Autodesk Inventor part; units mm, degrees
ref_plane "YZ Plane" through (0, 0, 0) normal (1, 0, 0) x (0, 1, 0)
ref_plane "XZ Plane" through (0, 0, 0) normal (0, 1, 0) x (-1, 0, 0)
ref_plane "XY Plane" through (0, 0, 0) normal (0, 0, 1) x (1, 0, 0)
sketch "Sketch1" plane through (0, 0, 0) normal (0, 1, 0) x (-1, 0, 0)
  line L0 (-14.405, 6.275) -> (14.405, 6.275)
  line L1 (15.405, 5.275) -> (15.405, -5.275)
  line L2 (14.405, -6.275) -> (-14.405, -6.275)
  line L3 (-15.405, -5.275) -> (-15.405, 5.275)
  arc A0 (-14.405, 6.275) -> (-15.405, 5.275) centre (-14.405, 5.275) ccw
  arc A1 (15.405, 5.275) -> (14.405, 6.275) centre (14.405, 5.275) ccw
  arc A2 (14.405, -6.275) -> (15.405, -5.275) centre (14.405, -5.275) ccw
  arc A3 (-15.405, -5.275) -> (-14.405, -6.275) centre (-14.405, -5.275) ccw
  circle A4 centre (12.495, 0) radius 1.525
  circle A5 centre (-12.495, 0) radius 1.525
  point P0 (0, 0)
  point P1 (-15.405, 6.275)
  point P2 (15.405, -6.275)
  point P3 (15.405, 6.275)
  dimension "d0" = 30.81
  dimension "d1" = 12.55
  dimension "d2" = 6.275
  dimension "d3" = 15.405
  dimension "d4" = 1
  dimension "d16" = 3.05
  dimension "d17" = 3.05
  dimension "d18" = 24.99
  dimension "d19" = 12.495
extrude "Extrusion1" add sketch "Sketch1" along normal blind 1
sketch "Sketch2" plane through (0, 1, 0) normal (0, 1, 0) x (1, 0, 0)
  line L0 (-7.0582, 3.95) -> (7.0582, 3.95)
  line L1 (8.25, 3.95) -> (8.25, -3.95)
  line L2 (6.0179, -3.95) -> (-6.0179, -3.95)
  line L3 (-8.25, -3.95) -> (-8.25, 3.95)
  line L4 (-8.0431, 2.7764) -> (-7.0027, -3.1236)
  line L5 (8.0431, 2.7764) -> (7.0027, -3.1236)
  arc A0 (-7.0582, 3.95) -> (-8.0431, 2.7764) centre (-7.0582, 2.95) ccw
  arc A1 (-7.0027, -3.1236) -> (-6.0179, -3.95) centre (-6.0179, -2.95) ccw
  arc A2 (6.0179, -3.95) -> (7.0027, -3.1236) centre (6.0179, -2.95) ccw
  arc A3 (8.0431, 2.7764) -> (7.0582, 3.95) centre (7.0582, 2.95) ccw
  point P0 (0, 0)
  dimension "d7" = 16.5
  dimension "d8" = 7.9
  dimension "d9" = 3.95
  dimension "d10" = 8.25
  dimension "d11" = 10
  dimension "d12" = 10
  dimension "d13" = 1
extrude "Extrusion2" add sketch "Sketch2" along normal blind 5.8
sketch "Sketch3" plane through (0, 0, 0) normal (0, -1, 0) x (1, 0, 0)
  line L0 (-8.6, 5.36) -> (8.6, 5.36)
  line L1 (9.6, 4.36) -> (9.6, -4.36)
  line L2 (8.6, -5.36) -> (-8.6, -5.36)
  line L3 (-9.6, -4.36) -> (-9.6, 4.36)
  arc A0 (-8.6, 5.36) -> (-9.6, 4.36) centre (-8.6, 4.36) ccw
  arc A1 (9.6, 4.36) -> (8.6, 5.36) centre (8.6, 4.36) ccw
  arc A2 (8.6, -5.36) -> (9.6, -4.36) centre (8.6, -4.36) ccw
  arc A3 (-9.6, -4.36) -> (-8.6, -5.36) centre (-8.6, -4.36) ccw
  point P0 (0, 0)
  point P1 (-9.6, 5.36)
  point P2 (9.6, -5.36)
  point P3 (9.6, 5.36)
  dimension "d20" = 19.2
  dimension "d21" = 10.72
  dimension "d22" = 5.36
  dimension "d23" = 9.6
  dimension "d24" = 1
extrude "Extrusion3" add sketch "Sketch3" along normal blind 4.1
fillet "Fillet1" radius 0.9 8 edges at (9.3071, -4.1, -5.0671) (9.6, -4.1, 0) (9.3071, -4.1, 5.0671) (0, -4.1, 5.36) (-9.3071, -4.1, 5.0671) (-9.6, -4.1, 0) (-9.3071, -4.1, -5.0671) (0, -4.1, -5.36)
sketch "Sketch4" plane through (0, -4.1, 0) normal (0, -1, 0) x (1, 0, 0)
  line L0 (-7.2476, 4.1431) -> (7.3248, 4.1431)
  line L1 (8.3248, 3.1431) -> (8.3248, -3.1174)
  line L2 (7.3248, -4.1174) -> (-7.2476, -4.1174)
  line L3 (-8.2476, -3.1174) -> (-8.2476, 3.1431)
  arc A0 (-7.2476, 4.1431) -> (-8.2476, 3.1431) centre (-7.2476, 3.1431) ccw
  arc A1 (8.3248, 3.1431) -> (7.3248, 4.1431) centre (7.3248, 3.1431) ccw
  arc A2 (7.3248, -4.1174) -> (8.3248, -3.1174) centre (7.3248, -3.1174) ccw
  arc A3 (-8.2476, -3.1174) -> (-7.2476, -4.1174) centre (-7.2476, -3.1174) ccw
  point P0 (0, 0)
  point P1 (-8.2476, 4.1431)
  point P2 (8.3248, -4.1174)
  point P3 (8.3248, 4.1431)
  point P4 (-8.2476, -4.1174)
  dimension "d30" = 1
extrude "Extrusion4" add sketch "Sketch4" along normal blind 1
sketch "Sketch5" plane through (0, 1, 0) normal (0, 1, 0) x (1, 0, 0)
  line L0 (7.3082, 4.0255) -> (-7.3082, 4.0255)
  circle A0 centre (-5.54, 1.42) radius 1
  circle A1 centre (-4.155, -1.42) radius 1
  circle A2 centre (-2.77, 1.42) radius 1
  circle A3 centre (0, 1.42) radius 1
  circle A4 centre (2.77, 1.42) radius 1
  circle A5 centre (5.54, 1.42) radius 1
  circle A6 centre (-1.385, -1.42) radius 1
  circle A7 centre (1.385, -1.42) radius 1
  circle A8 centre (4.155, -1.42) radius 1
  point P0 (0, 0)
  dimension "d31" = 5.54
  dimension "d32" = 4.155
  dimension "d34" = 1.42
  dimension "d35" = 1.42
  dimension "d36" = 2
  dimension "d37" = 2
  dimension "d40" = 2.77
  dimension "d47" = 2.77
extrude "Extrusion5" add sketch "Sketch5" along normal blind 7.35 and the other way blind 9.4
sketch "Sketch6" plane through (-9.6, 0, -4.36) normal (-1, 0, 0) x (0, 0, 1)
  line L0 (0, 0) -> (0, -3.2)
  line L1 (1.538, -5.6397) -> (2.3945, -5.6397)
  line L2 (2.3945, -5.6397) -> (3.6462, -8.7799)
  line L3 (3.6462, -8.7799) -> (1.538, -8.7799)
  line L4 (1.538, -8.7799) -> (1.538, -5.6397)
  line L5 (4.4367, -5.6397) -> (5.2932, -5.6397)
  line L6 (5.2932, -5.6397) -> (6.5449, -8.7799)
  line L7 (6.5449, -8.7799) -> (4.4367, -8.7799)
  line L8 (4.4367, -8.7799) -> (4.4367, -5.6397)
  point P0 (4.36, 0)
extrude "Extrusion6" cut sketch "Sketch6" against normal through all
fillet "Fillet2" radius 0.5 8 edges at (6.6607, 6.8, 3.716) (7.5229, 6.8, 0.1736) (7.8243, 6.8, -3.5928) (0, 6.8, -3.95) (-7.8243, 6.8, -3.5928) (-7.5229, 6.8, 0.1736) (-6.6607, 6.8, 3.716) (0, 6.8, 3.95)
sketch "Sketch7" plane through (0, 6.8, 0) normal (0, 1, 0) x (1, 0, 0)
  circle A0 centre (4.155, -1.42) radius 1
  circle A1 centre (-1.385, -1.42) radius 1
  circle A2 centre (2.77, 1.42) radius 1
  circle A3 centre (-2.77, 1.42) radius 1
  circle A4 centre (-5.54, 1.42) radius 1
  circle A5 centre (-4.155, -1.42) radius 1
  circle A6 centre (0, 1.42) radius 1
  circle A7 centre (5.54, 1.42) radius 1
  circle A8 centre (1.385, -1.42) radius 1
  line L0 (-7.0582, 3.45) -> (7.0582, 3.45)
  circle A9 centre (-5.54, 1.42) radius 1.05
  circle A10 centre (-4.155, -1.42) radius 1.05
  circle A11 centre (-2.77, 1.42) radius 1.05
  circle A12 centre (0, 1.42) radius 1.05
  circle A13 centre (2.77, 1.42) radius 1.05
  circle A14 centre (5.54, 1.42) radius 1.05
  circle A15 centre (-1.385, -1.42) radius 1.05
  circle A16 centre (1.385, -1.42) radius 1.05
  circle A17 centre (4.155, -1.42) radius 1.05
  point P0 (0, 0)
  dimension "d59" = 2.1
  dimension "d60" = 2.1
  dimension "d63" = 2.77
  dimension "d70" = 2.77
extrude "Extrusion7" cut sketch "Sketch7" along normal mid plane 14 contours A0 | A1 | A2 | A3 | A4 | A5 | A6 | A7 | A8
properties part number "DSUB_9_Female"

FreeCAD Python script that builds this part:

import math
import FreeCAD as App
import Part
import Sketcher

V = App.Vector
Q = App.Units.Quantity


def edges_at(feature, points):
    """Names of the edges that pass closest to the given points."""
    edges = feature.Shape.Edges
    near = lambda p: min(range(len(edges)), key=lambda i: edges[i].distToShape(Part.Vertex(*p))[0])
    return sorted({f"Edge{near(p) + 1}" for p in points})


def add_polygon(sketch, points):
    """Adds a closed chain of lines whose ends are joined by coincident constraints."""
    first, n = sketch.GeometryCount, len(points)
    for a, b in zip(points, points[1:] + points[:1]):
        sketch.addGeometry(Part.LineSegment(App.Vector(*a, 0), App.Vector(*b, 0)), False)
    for i in range(n):
        sketch.addConstraint(Sketcher.Constraint("Coincident", first + i, 2, first + (i + 1) % n, 1))

doc = App.newDocument("Part")
body = doc.addObject("PartDesign::Body", "Body")

# Sketch on XZ plane
sketch1 = body.newObject("Sketcher::SketchObject", "Sketch")
sketch1.AttachmentSupport = (doc.getObject("XZ_Plane"), [""])
sketch1.MapMode = "FlatFace"
sketch1.addGeometry(Part.LineSegment(V(-14.405, 6.275, 0), V(14.405, 6.275, 0)), False)
sketch1.addGeometry(Part.ArcOfCircle(Part.Circle(V(14.405, 5.275, 0), V(0, 0, 1), 1), math.radians(0), math.radians(90)), False)
sketch1.addGeometry(Part.LineSegment(V(15.405, 5.275, 0), V(15.405, -5.275, 0)), False)
sketch1.addGeometry(Part.ArcOfCircle(Part.Circle(V(14.405, -5.275, 0), V(0, 0, 1), 1), math.radians(-90), math.radians(0)), False)
sketch1.addGeometry(Part.LineSegment(V(14.405, -6.275, 0), V(-14.405, -6.275, 0)), False)
sketch1.addGeometry(Part.ArcOfCircle(Part.Circle(V(-14.405, -5.275, 0), V(0, 0, 1), 1), math.radians(180), math.radians(270)), False)
sketch1.addGeometry(Part.LineSegment(V(-15.405, -5.275, 0), V(-15.405, 5.275, 0)), False)
sketch1.addGeometry(Part.ArcOfCircle(Part.Circle(V(-14.405, 5.275, 0), V(0, 0, 1), 1), math.radians(90), math.radians(180)), False)
sketch1.addGeometry(Part.Circle(V(12.495, 0, 0), V(0, 0, 1), 1.525), False)
sketch1.addGeometry(Part.Circle(V(-12.495, 0, 0), V(0, 0, 1), 1.525), False)
sketch1.addConstraint(Sketcher.Constraint("Tangent", 0, 2, 1, 2))
sketch1.addConstraint(Sketcher.Constraint("Tangent", 1, 1, 2, 1))
sketch1.addConstraint(Sketcher.Constraint("Tangent", 2, 2, 3, 2))
sketch1.addConstraint(Sketcher.Constraint("Tangent", 3, 1, 4, 1))
sketch1.addConstraint(Sketcher.Constraint("Tangent", 4, 2, 5, 2))
sketch1.addConstraint(Sketcher.Constraint("Tangent", 5, 1, 6, 1))
sketch1.addConstraint(Sketcher.Constraint("Tangent", 6, 2, 7, 2))
sketch1.addConstraint(Sketcher.Constraint("Tangent", 7, 1, 0, 1))
sketch1.addConstraint(Sketcher.Constraint("Horizontal", 0))
sketch1.addConstraint(Sketcher.Constraint("Vertical", 2))
sketch1.addConstraint(Sketcher.Constraint("Horizontal", 4))
sketch1.addConstraint(Sketcher.Constraint("Vertical", 6))
sketch1.addConstraint(Sketcher.Constraint("Equal", 1, 3))
sketch1.addConstraint(Sketcher.Constraint("Equal", 3, 5))
sketch1.addConstraint(Sketcher.Constraint("Equal", 5, 7))
sketch1.addConstraint(Sketcher.Constraint("Equal", 8, 9))
sketch1.addConstraint(Sketcher.Constraint("Symmetric", 1, 3, 5, 3, -1, 1))
sketch1.addConstraint(Sketcher.Constraint("Symmetric", 8, 3, 9, 3, -1, 1))
sketch1.addConstraint(Sketcher.Constraint("PointOnObject", 8, 3, -1))
sketch1.addConstraint(Sketcher.Constraint("Radius", 1, Q("1 mm")))
sketch1.addConstraint(Sketcher.Constraint("Diameter", 8, Q("3.05 mm")))
sketch1.addConstraint(Sketcher.Constraint("DistanceX", 9, 3, 8, 3, Q("24.99 mm")))
sketch1.addConstraint(Sketcher.Constraint("DistanceY", -1, 1, 0, 2, Q("6.275 mm")))
sketch1.addConstraint(Sketcher.Constraint("DistanceX", -1, 1, 1, 1, Q("15.405 mm")))
pad1 = body.newObject("PartDesign::Pad", "Pad")
pad1.Profile = sketch1
pad1.Length = 1
pad1.Reversed = True

# Sketch on XZ plane
sketch2 = body.newObject("Sketcher::SketchObject", "Sketch001")
sketch2.AttachmentSupport = (doc.getObject("XZ_Plane"), [""])
sketch2.MapMode = "FlatFace"
sketch2.AttachmentOffset = App.Placement(V(0, 0, -1), App.Rotation())
sketch2.addGeometry(Part.LineSegment(V(7.0582, -3.95, 0), V(-7.0582, -3.95, 0)), False)
sketch2.addGeometry(Part.ArcOfCircle(Part.Circle(V(-7.0582, -2.95, 0), V(0, 0, 1), 1), math.radians(170.003636), math.radians(270)), False)
sketch2.addGeometry(Part.LineSegment(V(-8.0431, -2.7764, 0), V(-7.0027, 3.1236, 0)), False)
sketch2.addGeometry(Part.ArcOfCircle(Part.Circle(V(-6.0179, 2.95, 0), V(0, 0, 1), 0.999984), math.radians(90), math.radians(170.002641)), False)
sketch2.addGeometry(Part.LineSegment(V(-6.0179, 3.95, 0), V(6.0179, 3.95, 0)), False)
sketch2.addGeometry(Part.ArcOfCircle(Part.Circle(V(6.0179, 2.95, 0), V(0, 0, 1), 1), math.radians(9.997359), math.radians(90)), False)
sketch2.addGeometry(Part.LineSegment(V(7.0027, 3.1236, 0), V(8.0431, -2.7764, 0)), False)
sketch2.addGeometry(Part.ArcOfCircle(Part.Circle(V(7.0582, -2.95, 0), V(0, 0, 1), 1.000082), math.radians(-90), math.radians(9.996364)), False)
sketch2.addConstraint(Sketcher.Constraint("Tangent", 0, 2, 1, 2))
sketch2.addConstraint(Sketcher.Constraint("Tangent", 1, 1, 2, 1))
sketch2.addConstraint(Sketcher.Constraint("Tangent", 2, 2, 3, 2))
sketch2.addConstraint(Sketcher.Constraint("Tangent", 3, 1, 4, 1))
sketch2.addConstraint(Sketcher.Constraint("Tangent", 4, 2, 5, 2))
sketch2.addConstraint(Sketcher.Constraint("Tangent", 5, 1, 6, 1))
sketch2.addConstraint(Sketcher.Constraint("Tangent", 6, 2, 7, 2))
sketch2.addConstraint(Sketcher.Constraint("Tangent", 7, 1, 0, 1))
sketch2.addConstraint(Sketcher.Constraint("Horizontal", 0))
sketch2.addConstraint(Sketcher.Constraint("Horizontal", 4))
sketch2.addConstraint(Sketcher.Constraint("Equal", 1, 3))
sketch2.addConstraint(Sketcher.Constraint("Equal", 3, 5))
sketch2.addConstraint(Sketcher.Constraint("Equal", 5, 7))
sketch2.addConstraint(Sketcher.Constraint("Symmetric", 2, 2, 5, 1, -2))
sketch2.addConstraint(Sketcher.Constraint("Radius", 1, Q("1 mm")))
sketch2.addConstraint(Sketcher.Constraint("DistanceY", 0, 2, 3, 1, Q("7.9 mm")))
sketch2.addConstraint(Sketcher.Constraint("DistanceY", 0, 2, -1, 1, Q("3.95 mm")))
sketch2.addConstraint(Sketcher.Constraint("Angle", 2, Q("79.9993 deg")))
sketch2.addConstraint(Sketcher.Constraint("DistanceX", 0, 2, 0, 1, Q("14.1164 mm")))
pad2 = body.newObject("PartDesign::Pad", "Pad001")
pad2.Profile = sketch2
pad2.Length = 5.8
pad2.Reversed = True

# Sketch on XZ plane
sketch3 = body.newObject("Sketcher::SketchObject", "Sketch002")
sketch3.AttachmentSupport = (doc.getObject("XZ_Plane"), [""])
sketch3.MapMode = "FlatFace"
sketch3.addGeometry(Part.LineSegment(V(8.6, 5.36, 0), V(-8.6, 5.36, 0)), False)
sketch3.addGeometry(Part.ArcOfCircle(Part.Circle(V(-8.6, 4.36, 0), V(0, 0, 1), 1), math.radians(90), math.radians(180)), False)
sketch3.addGeometry(Part.LineSegment(V(-9.6, 4.36, 0), V(-9.6, -4.36, 0)), False)
sketch3.addGeometry(Part.ArcOfCircle(Part.Circle(V(-8.6, -4.36, 0), V(0, 0, 1), 1), math.radians(180), math.radians(270)), False)
sketch3.addGeometry(Part.LineSegment(V(-8.6, -5.36, 0), V(8.6, -5.36, 0)), False)
sketch3.addGeometry(Part.ArcOfCircle(Part.Circle(V(8.6, -4.36, 0), V(0, 0, 1), 1), math.radians(-90), math.radians(0)), False)
sketch3.addGeometry(Part.LineSegment(V(9.6, -4.36, 0), V(9.6, 4.36, 0)), False)
sketch3.addGeometry(Part.ArcOfCircle(Part.Circle(V(8.6, 4.36, 0), V(0, 0, 1), 1), math.radians(0), math.radians(90)), False)
sketch3.addConstraint(Sketcher.Constraint("Tangent", 0, 2, 1, 1))
sketch3.addConstraint(Sketcher.Constraint("Tangent", 1, 2, 2, 1))
sketch3.addConstraint(Sketcher.Constraint("Tangent", 2, 2, 3, 1))
sketch3.addConstraint(Sketcher.Constraint("Tangent", 3, 2, 4, 1))
sketch3.addConstraint(Sketcher.Constraint("Tangent", 4, 2, 5, 1))
sketch3.addConstraint(Sketcher.Constraint("Tangent", 5, 2, 6, 1))
sketch3.addConstraint(Sketcher.Constraint("Tangent", 6, 2, 7, 1))
sketch3.addConstraint(Sketcher.Constraint("Tangent", 7, 2, 0, 1))
sketch3.addConstraint(Sketcher.Constraint("Horizontal", 0))
sketch3.addConstraint(Sketcher.Constraint("Vertical", 2))
sketch3.addConstraint(Sketcher.Constraint("Horizontal", 4))
sketch3.addConstraint(Sketcher.Constraint("Vertical", 6))
sketch3.addConstraint(Sketcher.Constraint("Equal", 1, 3))
sketch3.addConstraint(Sketcher.Constraint("Equal", 3, 5))
sketch3.addConstraint(Sketcher.Constraint("Equal", 5, 7))
sketch3.addConstraint(Sketcher.Constraint("Symmetric", 1, 3, 5, 3, -1, 1))
sketch3.addConstraint(Sketcher.Constraint("Radius", 1, Q("1 mm")))
sketch3.addConstraint(Sketcher.Constraint("DistanceX", 1, 2, -1, 1, Q("9.6 mm")))
sketch3.addConstraint(Sketcher.Constraint("DistanceY", -1, 1, 0, 2, Q("5.36 mm")))
pad3 = body.newObject("PartDesign::Pad", "Pad002")
pad3.Profile = sketch3
pad3.Length = 4.1
doc.recompute()

fillet = body.newObject("PartDesign::Fillet", "Fillet")
fillet.Base = (pad3, edges_at(pad3, [
    (9.307, -4.1, -5.067),
    (9.6, -4.1, 0),
    (9.307, -4.1, 5.067),
    (0, -4.1, 5.36),
    (-9.307, -4.1, 5.067),
    (-9.6, -4.1, 0),
    (-9.307, -4.1, -5.067),
    (0, -4.1, -5.36),
]))
fillet.Radius = 0.9

# Sketch on XZ plane
sketch4 = body.newObject("Sketcher::SketchObject", "Sketch003")
sketch4.AttachmentSupport = (doc.getObject("XZ_Plane"), [""])
sketch4.MapMode = "FlatFace"
sketch4.AttachmentOffset = App.Placement(V(0, 0, 4.1), App.Rotation())
sketch4.addGeometry(Part.LineSegment(V(7.3248, 4.1431, 0), V(-7.2476, 4.1431, 0)), False)
sketch4.addGeometry(Part.ArcOfCircle(Part.Circle(V(-7.2476, 3.1431, 0), V(0, 0, 1), 1), math.radians(90), math.radians(180)), False)
sketch4.addGeometry(Part.LineSegment(V(-8.2476, 3.1431, 0), V(-8.2476, -3.1174, 0)), False)
sketch4.addGeometry(Part.ArcOfCircle(Part.Circle(V(-7.2476, -3.1174, 0), V(0, 0, 1), 1), math.radians(180), math.radians(270)), False)
sketch4.addGeometry(Part.LineSegment(V(-7.2476, -4.1174, 0), V(7.3248, -4.1174, 0)), False)
sketch4.addGeometry(Part.ArcOfCircle(Part.Circle(V(7.3248, -3.1174, 0), V(0, 0, 1), 1), math.radians(-90), math.radians(0)), False)
sketch4.addGeometry(Part.LineSegment(V(8.3248, -3.1174, 0), V(8.3248, 3.1431, 0)), False)
sketch4.addGeometry(Part.ArcOfCircle(Part.Circle(V(7.3248, 3.1431, 0), V(0, 0, 1), 1), math.radians(0), math.radians(90)), False)
sketch4.addConstraint(Sketcher.Constraint("Tangent", 0, 2, 1, 1))
sketch4.addConstraint(Sketcher.Constraint("Tangent", 1, 2, 2, 1))
sketch4.addConstraint(Sketcher.Constraint("Tangent", 2, 2, 3, 1))
sketch4.addConstraint(Sketcher.Constraint("Tangent", 3, 2, 4, 1))
sketch4.addConstraint(Sketcher.Constraint("Tangent", 4, 2, 5, 1))
sketch4.addConstraint(Sketcher.Constraint("Tangent", 5, 2, 6, 1))
sketch4.addConstraint(Sketcher.Constraint("Tangent", 6, 2, 7, 1))
sketch4.addConstraint(Sketcher.Constraint("Tangent", 7, 2, 0, 1))
sketch4.addConstraint(Sketcher.Constraint("Horizontal", 0))
sketch4.addConstraint(Sketcher.Constraint("Vertical", 2))
sketch4.addConstraint(Sketcher.Constraint("Horizontal", 4))
sketch4.addConstraint(Sketcher.Constraint("Vertical", 6))
sketch4.addConstraint(Sketcher.Constraint("Equal", 1, 3))
sketch4.addConstraint(Sketcher.Constraint("Equal", 3, 5))
sketch4.addConstraint(Sketcher.Constraint("Equal", 5, 7))
sketch4.addConstraint(Sketcher.Constraint("Radius", 1, Q("1 mm")))
sketch4.addConstraint(Sketcher.Constraint("DistanceX", 0, 2, 0, 1, Q("14.5724 mm")))
sketch4.addConstraint(Sketcher.Constraint("DistanceY", 2, 2, 2, 1, Q("6.2605 mm")))
sketch4.addConstraint(Sketcher.Constraint("DistanceY", -1, 1, 1, 3, Q("3.143 mm")))
sketch4.addConstraint(Sketcher.Constraint("DistanceX", 1, 3, -1, 1, Q("7.2476 mm")))
pad4 = body.newObject("PartDesign::Pad", "Pad003")
pad4.Profile = sketch4
pad4.Length = 1

# Sketch on XZ plane
sketch5 = body.newObject("Sketcher::SketchObject", "Sketch004")
sketch5.AttachmentSupport = (doc.getObject("XZ_Plane"), [""])
sketch5.MapMode = "FlatFace"
sketch5.AttachmentOffset = App.Placement(V(0, 0, -1), App.Rotation())
sketch5.addGeometry(Part.Circle(V(-5.54, -1.42, 0), V(0, 0, 1), 1), False)
sketch5.addGeometry(Part.Circle(V(-4.155, 1.42, 0), V(0, 0, 1), 1), False)
sketch5.addGeometry(Part.Circle(V(-2.77, -1.42, 0), V(0, 0, 1), 1), False)
sketch5.addGeometry(Part.Circle(V(0, -1.42, 0), V(0, 0, 1), 1), False)
sketch5.addGeometry(Part.Circle(V(2.77, -1.42, 0), V(0, 0, 1), 1), False)
sketch5.addGeometry(Part.Circle(V(5.54, -1.42, 0), V(0, 0, 1), 1), False)
sketch5.addGeometry(Part.Circle(V(-1.385, 1.42, 0), V(0, 0, 1), 1), False)
sketch5.addGeometry(Part.Circle(V(1.385, 1.42, 0), V(0, 0, 1), 1), False)
sketch5.addGeometry(Part.Circle(V(4.155, 1.42, 0), V(0, 0, 1), 1), False)
sketch5.addConstraint(Sketcher.Constraint("Equal", 0, 1))
sketch5.addConstraint(Sketcher.Constraint("Equal", 1, 2))
sketch5.addConstraint(Sketcher.Constraint("Equal", 2, 3))
sketch5.addConstraint(Sketcher.Constraint("Equal", 3, 4))
sketch5.addConstraint(Sketcher.Constraint("Equal", 4, 5))
sketch5.addConstraint(Sketcher.Constraint("Equal", 5, 6))
sketch5.addConstraint(Sketcher.Constraint("Equal", 6, 7))
sketch5.addConstraint(Sketcher.Constraint("Equal", 7, 8))
sketch5.addConstraint(Sketcher.Constraint("Symmetric", 2, 3, 4, 3, -2))
sketch5.addConstraint(Sketcher.Constraint("Symmetric", 0, 3, 5, 3, -2))
sketch5.addConstraint(Sketcher.Constraint("Symmetric", 6, 3, 7, 3, -2))
sketch5.addConstraint(Sketcher.Constraint("Symmetric", 1, 3, 8, 3, -2))
sketch5.addConstraint(Sketcher.Constraint("PointOnObject", 3, 3, -2))
sketch5.addConstraint(Sketcher.Constraint("Horizontal", 0, 3, 2, 3))
sketch5.addConstraint(Sketcher.Constraint("Horizontal", 2, 3, 3, 3))
sketch5.addConstraint(Sketcher.Constraint("Horizontal", 1, 3, 6, 3))
sketch5.addConstraint(Sketcher.Constraint("Diameter", 0, Q("2 mm")))
sketch5.addConstraint(Sketcher.Constraint("DistanceX", 0, 3, -1, 1, Q("5.54 mm")))
sketch5.addConstraint(Sketcher.Constraint("DistanceY", 0, 3, -1, 1, Q("1.42 mm")))
sketch5.addConstraint(Sketcher.Constraint("DistanceY", -1, 1, 1, 3, Q("1.42 mm")))
sketch5.addConstraint(Sketcher.Constraint("DistanceX", 2, 3, -1, 1, Q("2.77 mm")))
sketch5.addConstraint(Sketcher.Constraint("DistanceX", 1, 3, 6, 3, Q("2.77 mm")))
sketch5.addConstraint(Sketcher.Constraint("DistanceX", 6, 3, 7, 3, Q("2.77 mm")))
pad5 = body.newObject("PartDesign::Pad", "Pad004")
pad5.Profile = sketch5
pad5.Type = "TwoLengths"
pad5.Length = 7.35
pad5.Length2 = 9.4
pad5.Reversed = True

# Sketch on YZ plane
sketch6 = body.newObject("Sketcher::SketchObject", "Sketch005")
sketch6.AttachmentSupport = (doc.getObject("YZ_Plane"), [""])
sketch6.MapMode = "FlatFace"
sketch6.AttachmentOffset = App.Placement(V(0, 0, -9.6), App.Rotation())
add_polygon(sketch6, [(-5.6397, -1.9655), (-5.6397, -2.822), (-8.7799, -2.822), (-8.7799, -0.7138)])  # lines 0-3
add_polygon(sketch6, [(-5.6397, 0.9332), (-5.6397, 0.0767), (-8.7799, 0.0767), (-8.7799, 2.1849)])  # lines 4-7
sketch6.addConstraint(Sketcher.Constraint("Vertical", 0))
sketch6.addConstraint(Sketcher.Constraint("Horizontal", 1))
sketch6.addConstraint(Sketcher.Constraint("Vertical", 2))
sketch6.addConstraint(Sketcher.Constraint("Vertical", 4))
sketch6.addConstraint(Sketcher.Constraint("Horizontal", 5))
sketch6.addConstraint(Sketcher.Constraint("Vertical", 6))
sketch6.addConstraint(Sketcher.Constraint("Parallel", 3, 7))
sketch6.addConstraint(Sketcher.Constraint("Vertical", 3, 2, 4, 2))
sketch6.addConstraint(Sketcher.Constraint("Vertical", 2, 2, 5, 2))
sketch6.addConstraint(Sketcher.Constraint("Equal", 0, 4))
sketch6.addConstraint(Sketcher.Constraint("DistanceX", 1, 2, -1, 1, Q("8.78 mm")))
sketch6.addConstraint(Sketcher.Constraint("DistanceX", 1, 2, 1, 1, Q("3.1402 mm")))
sketch6.addConstraint(Sketcher.Constraint("DistanceY", 0, 2, 0, 1, Q("0.8565 mm")))
sketch6.addConstraint(Sketcher.Constraint("DistanceY", 2, 1, 2, 2, Q("2.1082 mm")))
sketch6.addConstraint(Sketcher.Constraint("DistanceY", 0, 2, -1, 1, Q("2.822 mm")))
sketch6.addConstraint(Sketcher.Constraint("DistanceY", -1, 1, 6, 2, Q("2.185 mm")))
pocket1 = body.newObject("PartDesign::Pocket", "Pocket")
pocket1.Profile = sketch6
pocket1.Type = "ThroughAll"
pocket1.Reversed = True
doc.recompute()

fillet2 = body.newObject("PartDesign::Fillet", "Fillet001")
fillet2.Base = (pocket1, edges_at(pocket1, [
    (6.661, 6.8, 3.716),
    (7.523, 6.8, 0.174),
    (7.824, 6.8, -3.593),
    (0, 6.8, -3.95),
    (-7.824, 6.8, -3.593),
    (-7.523, 6.8, 0.174),
    (-6.661, 6.8, 3.716),
    (0, 6.8, 3.95),
]))
fillet2.Radius = 0.5

# Sketch on XZ plane
sketch7 = body.newObject("Sketcher::SketchObject", "Sketch006")
sketch7.AttachmentSupport = (doc.getObject("XZ_Plane"), [""])
sketch7.MapMode = "FlatFace"
sketch7.AttachmentOffset = App.Placement(V(0, 0, -6.8), App.Rotation())
sketch7.addGeometry(Part.Circle(V(4.155, 1.42, 0), V(0, 0, 1), 1), False)
sketch7.addGeometry(Part.Circle(V(-1.385, 1.42, 0), V(0, 0, 1), 1), False)
sketch7.addGeometry(Part.Circle(V(2.77, -1.42, 0), V(0, 0, 1), 1), False)
sketch7.addGeometry(Part.Circle(V(-2.77, -1.42, 0), V(0, 0, 1), 1), False)
sketch7.addGeometry(Part.Circle(V(-5.54, -1.42, 0), V(0, 0, 1), 1), False)
sketch7.addGeometry(Part.Circle(V(-4.155, 1.42, 0), V(0, 0, 1), 1), False)
sketch7.addGeometry(Part.Circle(V(0, -1.42, 0), V(0, 0, 1), 1), False)
sketch7.addGeometry(Part.Circle(V(5.54, -1.42, 0), V(0, 0, 1), 1), False)
sketch7.addGeometry(Part.Circle(V(1.385, 1.42, 0), V(0, 0, 1), 1), False)
sketch7.addConstraint(Sketcher.Constraint("Equal", 0, 1))
sketch7.addConstraint(Sketcher.Constraint("Equal", 1, 2))
sketch7.addConstraint(Sketcher.Constraint("Equal", 2, 3))
sketch7.addConstraint(Sketcher.Constraint("Equal", 3, 4))
sketch7.addConstraint(Sketcher.Constraint("Equal", 4, 5))
sketch7.addConstraint(Sketcher.Constraint("Equal", 5, 6))
sketch7.addConstraint(Sketcher.Constraint("Equal", 6, 7))
sketch7.addConstraint(Sketcher.Constraint("Equal", 7, 8))
sketch7.addConstraint(Sketcher.Constraint("Symmetric", 2, 3, 3, 3, -2))
sketch7.addConstraint(Sketcher.Constraint("Symmetric", 0, 3, 5, 3, -2))
sketch7.addConstraint(Sketcher.Constraint("Symmetric", 4, 3, 7, 3, -2))
sketch7.addConstraint(Sketcher.Constraint("Symmetric", 1, 3, 8, 3, -2))
sketch7.addConstraint(Sketcher.Constraint("PointOnObject", 6, 3, -2))
sketch7.addConstraint(Sketcher.Constraint("Horizontal", 0, 3, 1, 3))
sketch7.addConstraint(Sketcher.Constraint("Horizontal", 3, 3, 4, 3))
sketch7.addConstraint(Sketcher.Constraint("Horizontal", 4, 3, 6, 3))
sketch7.addConstraint(Sketcher.Constraint("Diameter", 0, Q("2 mm")))
sketch7.addConstraint(Sketcher.Constraint("DistanceX", -1, 1, 2, 3, Q("2.77 mm")))
sketch7.addConstraint(Sketcher.Constraint("DistanceX", 4, 3, 3, 3, Q("2.77 mm")))
sketch7.addConstraint(Sketcher.Constraint("DistanceX", 5, 3, 1, 3, Q("2.77 mm")))
sketch7.addConstraint(Sketcher.Constraint("DistanceX", 1, 3, 8, 3, Q("2.77 mm")))
sketch7.addConstraint(Sketcher.Constraint("DistanceY", -1, 1, 0, 3, Q("1.42 mm")))
sketch7.addConstraint(Sketcher.Constraint("DistanceY", 2, 3, -1, 1, Q("1.42 mm")))
pocket2 = body.newObject("PartDesign::Pocket", "Pocket001")
pocket2.Profile = sketch7
pocket2.Length = 14
pocket2.Midplane = True

doc.recompute()
